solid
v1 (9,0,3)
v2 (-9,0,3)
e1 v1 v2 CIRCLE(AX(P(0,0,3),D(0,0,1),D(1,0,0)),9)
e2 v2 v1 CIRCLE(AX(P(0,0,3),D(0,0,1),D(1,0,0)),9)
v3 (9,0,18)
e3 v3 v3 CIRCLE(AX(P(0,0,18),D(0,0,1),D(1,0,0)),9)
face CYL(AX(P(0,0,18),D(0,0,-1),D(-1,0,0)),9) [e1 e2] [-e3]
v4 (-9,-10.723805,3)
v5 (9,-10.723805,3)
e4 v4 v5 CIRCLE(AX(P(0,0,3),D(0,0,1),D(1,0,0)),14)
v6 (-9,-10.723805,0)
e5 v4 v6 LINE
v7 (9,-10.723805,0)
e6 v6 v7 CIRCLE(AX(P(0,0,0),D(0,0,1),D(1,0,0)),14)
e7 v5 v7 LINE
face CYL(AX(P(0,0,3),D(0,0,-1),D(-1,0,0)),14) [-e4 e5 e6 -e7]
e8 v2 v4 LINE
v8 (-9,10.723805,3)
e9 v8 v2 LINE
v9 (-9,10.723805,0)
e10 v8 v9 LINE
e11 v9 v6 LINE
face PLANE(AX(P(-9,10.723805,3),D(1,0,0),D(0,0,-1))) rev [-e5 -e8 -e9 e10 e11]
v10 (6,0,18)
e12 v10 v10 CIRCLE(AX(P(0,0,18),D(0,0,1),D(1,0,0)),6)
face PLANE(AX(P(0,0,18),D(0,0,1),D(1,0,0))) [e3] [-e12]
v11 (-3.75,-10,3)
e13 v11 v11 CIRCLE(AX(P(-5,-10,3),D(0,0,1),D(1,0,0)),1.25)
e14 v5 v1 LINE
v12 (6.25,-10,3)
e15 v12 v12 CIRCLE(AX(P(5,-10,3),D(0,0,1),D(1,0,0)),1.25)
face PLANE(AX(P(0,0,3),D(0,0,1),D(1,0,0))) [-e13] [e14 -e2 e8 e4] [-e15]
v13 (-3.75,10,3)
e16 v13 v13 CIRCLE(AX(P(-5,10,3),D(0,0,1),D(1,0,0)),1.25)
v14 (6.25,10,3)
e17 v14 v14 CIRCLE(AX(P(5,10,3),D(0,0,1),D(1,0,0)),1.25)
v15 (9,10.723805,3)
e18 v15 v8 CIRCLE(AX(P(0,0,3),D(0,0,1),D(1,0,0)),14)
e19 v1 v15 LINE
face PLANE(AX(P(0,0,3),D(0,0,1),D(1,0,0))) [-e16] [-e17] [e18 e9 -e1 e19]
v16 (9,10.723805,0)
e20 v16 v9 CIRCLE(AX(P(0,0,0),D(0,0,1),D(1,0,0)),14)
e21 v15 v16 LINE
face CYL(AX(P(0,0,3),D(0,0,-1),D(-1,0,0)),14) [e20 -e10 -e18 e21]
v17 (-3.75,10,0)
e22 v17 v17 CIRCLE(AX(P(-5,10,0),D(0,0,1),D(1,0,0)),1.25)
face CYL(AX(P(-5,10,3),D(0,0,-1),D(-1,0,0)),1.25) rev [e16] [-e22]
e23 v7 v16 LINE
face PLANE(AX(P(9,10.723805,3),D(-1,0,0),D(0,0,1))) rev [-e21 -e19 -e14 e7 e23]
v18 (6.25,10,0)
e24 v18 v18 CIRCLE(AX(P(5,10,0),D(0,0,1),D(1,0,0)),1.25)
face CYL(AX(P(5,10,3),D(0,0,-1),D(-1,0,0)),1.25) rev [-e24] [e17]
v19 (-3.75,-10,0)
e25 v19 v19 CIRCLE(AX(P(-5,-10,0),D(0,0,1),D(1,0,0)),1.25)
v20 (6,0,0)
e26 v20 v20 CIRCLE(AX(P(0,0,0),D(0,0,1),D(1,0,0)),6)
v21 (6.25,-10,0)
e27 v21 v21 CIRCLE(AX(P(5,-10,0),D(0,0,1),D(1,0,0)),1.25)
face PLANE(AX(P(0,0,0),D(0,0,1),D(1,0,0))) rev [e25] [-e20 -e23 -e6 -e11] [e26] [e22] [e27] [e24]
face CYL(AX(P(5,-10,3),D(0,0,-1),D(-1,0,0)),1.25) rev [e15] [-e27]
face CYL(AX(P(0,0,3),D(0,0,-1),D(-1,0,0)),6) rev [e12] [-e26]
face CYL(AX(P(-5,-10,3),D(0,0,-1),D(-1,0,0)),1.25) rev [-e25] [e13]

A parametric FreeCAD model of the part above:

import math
import FreeCAD as App
import Part
import Sketcher
from FreeCAD import Vector

doc = App.newDocument("Part")
body = doc.addObject("PartDesign::Body", "Body")

# Sketch on XY plane
sketch1 = doc.addObject("Sketcher::SketchObject", "Sketch")
body.addObject(sketch1)
sketch1.AttachmentSupport = (doc.XY_Plane, [""])
sketch1.MapMode = "FlatFace"
sketch1.addGeometry(Part.LineSegment(Vector(-9, 10.7, 0), Vector(-9, -10.7, 0)), False)
sketch1.addGeometry(Part.ArcOfCircle(Part.Circle(Vector(0, 0, 0), Vector(0, 0, 1), 14), math.radians(-130), math.radians(-50)), False)
sketch1.addGeometry(Part.LineSegment(Vector(9, -10.7, 0), Vector(9, 10.7, 0)), False)
sketch1.addGeometry(Part.ArcOfCircle(Part.Circle(Vector(0, 0, 0), Vector(0, 0, 1), 14), math.radians(50), math.radians(130)), False)
sketch1.addGeometry(Part.Circle(Vector(-5, -10, 0), Vector(0, 0, 1), 1.2), False)
sketch1.addGeometry(Part.Circle(Vector(5, -10, 0), Vector(0, 0, 1), 1.2), False)
sketch1.addGeometry(Part.Circle(Vector(-5, 10, 0), Vector(0, 0, 1), 1.2), False)
sketch1.addGeometry(Part.Circle(Vector(0, 0, 0), Vector(0, 0, 1), 6), False)
sketch1.addGeometry(Part.Circle(Vector(5, 10, 0), Vector(0, 0, 1), 1.2), False)
sketch1.addConstraint(Sketcher.Constraint("Coincident", 0, 2, 1, 1))
sketch1.addConstraint(Sketcher.Constraint("Coincident", 1, 2, 2, 1))
sketch1.addConstraint(Sketcher.Constraint("Coincident", 2, 2, 3, 1))
sketch1.addConstraint(Sketcher.Constraint("Coincident", 3, 2, 0, 1))
sketch1.addConstraint(Sketcher.Constraint("Vertical", 0))
sketch1.addConstraint(Sketcher.Constraint("Vertical", 2))
sketch1.addConstraint(Sketcher.Constraint("Coincident", 1, 3, -1, 1))
sketch1.addConstraint(Sketcher.Constraint("Coincident", 3, 3, -1, 1))
sketch1.addConstraint(Sketcher.Constraint("Coincident", 7, 3, -1, 1))
sketch1.addConstraint(Sketcher.Constraint("Equal", 1, 3))
sketch1.addConstraint(Sketcher.Constraint("Equal", 4, 5))
sketch1.addConstraint(Sketcher.Constraint("Equal", 5, 6))
sketch1.addConstraint(Sketcher.Constraint("Equal", 6, 8))
sketch1.addConstraint(Sketcher.Constraint("Symmetric", 5, 3, 6, 3, -1, 1))
sketch1.addConstraint(Sketcher.Constraint("Symmetric", 4, 3, 8, 3, -1, 1))
sketch1.addConstraint(Sketcher.Constraint("Symmetric", 4, 3, 5, 3, -2))
sketch1.addConstraint(Sketcher.Constraint("Horizontal", 0, 2, 1, 2))
sketch1.addConstraint(Sketcher.Constraint("Diameter", 7, 12.0))
sketch1.addConstraint(Sketcher.Constraint("Radius", 1, 14.0))
sketch1.addConstraint(Sketcher.Constraint("Diameter", 4, 2.5))
sketch1.addConstraint(Sketcher.Constraint("DistanceX", 4, 3, -1, 1, 5.0))
sketch1.addConstraint(Sketcher.Constraint("DistanceY", 4, 3, -1, 1, 10.0))
sketch1.addConstraint(Sketcher.Constraint("DistanceX", 0, 2, -1, 1, 9.0))
pad1 = doc.addObject("PartDesign::Pad", "Pad")
body.addObject(pad1)
pad1.Profile = sketch1
pad1.Length = 3

# Sketch on XY plane
sketch2 = doc.addObject("Sketcher::SketchObject", "Sketch001")
body.addObject(sketch2)
sketch2.AttachmentSupport = (doc.XY_Plane, [""])
sketch2.MapMode = "FlatFace"
sketch2.AttachmentOffset = App.Placement(Vector(0, 0, 3), App.Rotation())
sketch2.addGeometry(Part.Circle(Vector(0, 0, 0), Vector(0, 0, 1), 9), False)
sketch2.addGeometry(Part.Circle(Vector(0, 0, 0), Vector(0, 0, 1), 6), False)
sketch2.addConstraint(Sketcher.Constraint("Coincident", 0, 3, -1, 1))
sketch2.addConstraint(Sketcher.Constraint("Coincident", 1, 3, -1, 1))
sketch2.addConstraint(Sketcher.Constraint("Diameter", 0, 18.0))
sketch2.addConstraint(Sketcher.Constraint("Diameter", 1, 12.0))
pad2 = doc.addObject("PartDesign::Pad", "Pad001")
body.addObject(pad2)
pad2.Profile = sketch2
pad2.Length = 15

doc.recompute()
